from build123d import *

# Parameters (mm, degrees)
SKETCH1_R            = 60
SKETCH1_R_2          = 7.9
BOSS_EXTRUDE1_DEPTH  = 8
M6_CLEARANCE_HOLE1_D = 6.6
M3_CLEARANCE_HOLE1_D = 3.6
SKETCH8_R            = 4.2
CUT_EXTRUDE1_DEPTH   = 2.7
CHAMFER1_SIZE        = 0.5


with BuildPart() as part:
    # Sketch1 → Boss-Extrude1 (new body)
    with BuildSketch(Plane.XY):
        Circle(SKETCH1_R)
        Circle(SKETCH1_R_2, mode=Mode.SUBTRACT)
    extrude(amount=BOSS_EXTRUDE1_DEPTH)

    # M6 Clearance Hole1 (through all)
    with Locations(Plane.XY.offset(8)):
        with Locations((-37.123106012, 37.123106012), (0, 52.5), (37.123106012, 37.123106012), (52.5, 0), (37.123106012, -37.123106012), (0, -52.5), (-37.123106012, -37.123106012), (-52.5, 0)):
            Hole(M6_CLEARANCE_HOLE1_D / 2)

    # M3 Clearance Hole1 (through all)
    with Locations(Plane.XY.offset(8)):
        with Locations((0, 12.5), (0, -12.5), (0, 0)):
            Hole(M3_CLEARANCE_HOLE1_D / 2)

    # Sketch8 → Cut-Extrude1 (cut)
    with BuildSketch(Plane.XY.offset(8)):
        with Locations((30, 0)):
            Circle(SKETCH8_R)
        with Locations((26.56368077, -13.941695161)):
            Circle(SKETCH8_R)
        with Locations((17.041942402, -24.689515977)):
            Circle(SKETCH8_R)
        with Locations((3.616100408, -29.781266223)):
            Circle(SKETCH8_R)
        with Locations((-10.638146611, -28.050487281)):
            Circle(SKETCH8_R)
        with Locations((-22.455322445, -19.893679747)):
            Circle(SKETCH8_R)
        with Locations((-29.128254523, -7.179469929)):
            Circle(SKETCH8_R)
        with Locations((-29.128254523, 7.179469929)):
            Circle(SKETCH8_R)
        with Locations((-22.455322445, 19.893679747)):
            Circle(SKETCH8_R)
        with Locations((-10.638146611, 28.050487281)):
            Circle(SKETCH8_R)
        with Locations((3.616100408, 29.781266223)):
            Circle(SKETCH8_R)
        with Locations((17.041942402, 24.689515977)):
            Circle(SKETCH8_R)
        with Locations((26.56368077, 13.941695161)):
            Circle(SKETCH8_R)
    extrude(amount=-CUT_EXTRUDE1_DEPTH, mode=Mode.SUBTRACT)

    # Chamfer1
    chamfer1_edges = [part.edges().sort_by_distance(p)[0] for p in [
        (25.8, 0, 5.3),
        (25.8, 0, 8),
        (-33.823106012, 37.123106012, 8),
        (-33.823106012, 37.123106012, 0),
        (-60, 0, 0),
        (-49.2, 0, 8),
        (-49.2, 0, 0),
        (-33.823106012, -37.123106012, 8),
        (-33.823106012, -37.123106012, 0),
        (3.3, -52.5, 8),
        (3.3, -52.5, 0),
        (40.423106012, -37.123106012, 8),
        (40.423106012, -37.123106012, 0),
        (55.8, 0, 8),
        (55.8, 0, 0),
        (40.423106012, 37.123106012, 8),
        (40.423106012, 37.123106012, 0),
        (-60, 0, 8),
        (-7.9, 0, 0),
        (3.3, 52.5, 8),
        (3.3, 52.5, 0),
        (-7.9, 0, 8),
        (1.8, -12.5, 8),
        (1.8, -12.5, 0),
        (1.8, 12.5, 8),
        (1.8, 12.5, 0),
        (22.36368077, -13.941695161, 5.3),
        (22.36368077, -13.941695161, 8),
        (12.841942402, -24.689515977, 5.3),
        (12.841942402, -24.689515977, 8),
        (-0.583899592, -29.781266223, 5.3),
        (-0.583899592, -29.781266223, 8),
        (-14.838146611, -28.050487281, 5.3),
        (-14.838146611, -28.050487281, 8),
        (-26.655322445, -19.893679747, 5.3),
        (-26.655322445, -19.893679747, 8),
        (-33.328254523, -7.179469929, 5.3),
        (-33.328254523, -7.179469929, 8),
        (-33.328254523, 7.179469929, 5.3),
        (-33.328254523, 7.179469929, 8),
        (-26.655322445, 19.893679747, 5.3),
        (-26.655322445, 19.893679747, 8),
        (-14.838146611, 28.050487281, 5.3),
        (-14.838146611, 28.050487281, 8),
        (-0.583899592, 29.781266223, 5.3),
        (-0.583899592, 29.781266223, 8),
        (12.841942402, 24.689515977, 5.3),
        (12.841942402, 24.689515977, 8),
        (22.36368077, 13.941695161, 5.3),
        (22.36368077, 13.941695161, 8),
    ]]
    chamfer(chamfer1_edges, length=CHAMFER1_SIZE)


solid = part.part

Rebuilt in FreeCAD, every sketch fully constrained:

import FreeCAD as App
import Part
import Sketcher

V = App.Vector


def edges_at(feature, points):
    """Names of the edges that pass closest to the given points."""
    edges = feature.Shape.Edges
    near = lambda p: min(range(len(edges)), key=lambda i: edges[i].distToShape(Part.Vertex(*p))[0])
    return sorted({f"Edge{near(p) + 1}" for p in points})

doc = App.newDocument("Part")
body = doc.addObject("PartDesign::Body", "Body")

# Sketch on XY plane
sketch1 = body.newObject("Sketcher::SketchObject", "Sketch")
sketch1.AttachmentSupport = (doc.getObject("XY_Plane"), [""])
sketch1.MapMode = "FlatFace"
sketch1.addGeometry(Part.Circle(V(0, 0, 0), V(0, 0, 1), 60), False)
sketch1.addGeometry(Part.Circle(V(0, 0, 0), V(0, 0, 1), 7.9), False)
sketch1.addConstraint(Sketcher.Constraint("Coincident", 0, 3, -1, 1))
sketch1.addConstraint(Sketcher.Constraint("Coincident", 1, 3, -1, 1))
sketch1.addConstraint(Sketcher.Constraint("Diameter", 0, 120.0))
sketch1.addConstraint(Sketcher.Constraint("Diameter", 1, 15.8))
pad1 = body.newObject("PartDesign::Pad", "Pad")
pad1.Profile = sketch1
pad1.Length = 8

# Sketch on XY plane
sketch2 = body.newObject("Sketcher::SketchObject", "Sketch001")
sketch2.AttachmentSupport = (doc.getObject("XY_Plane"), [""])
sketch2.MapMode = "FlatFace"
sketch2.AttachmentOffset = App.Placement(V(0, 0, 8), App.Rotation())
sketch2.addGeometry(Part.Circle(V(-37.123106, 37.123106, 0), V(0, 0, 1), 3.3), False)
sketch2.addGeometry(Part.Circle(V(0, 52.5, 0), V(0, 0, 1), 3.3), False)
sketch2.addGeometry(Part.Circle(V(37.123106, 37.123106, 0), V(0, 0, 1), 3.3), False)
sketch2.addGeometry(Part.Circle(V(52.5, 0, 0), V(0, 0, 1), 3.3), False)
sketch2.addGeometry(Part.Circle(V(37.123106, -37.123106, 0), V(0, 0, 1), 3.3), False)
sketch2.addGeometry(Part.Circle(V(0, -52.5, 0), V(0, 0, 1), 3.3), False)
sketch2.addGeometry(Part.Circle(V(-37.123106, -37.123106, 0), V(0, 0, 1), 3.3), False)
sketch2.addGeometry(Part.Circle(V(-52.5, 0, 0), V(0, 0, 1), 3.3), False)
sketch2.addConstraint(Sketcher.Constraint("Equal", 0, 1))
sketch2.addConstraint(Sketcher.Constraint("Equal", 1, 2))
sketch2.addConstraint(Sketcher.Constraint("Equal", 2, 3))
sketch2.addConstraint(Sketcher.Constraint("Equal", 3, 4))
sketch2.addConstraint(Sketcher.Constraint("Equal", 4, 5))
sketch2.addConstraint(Sketcher.Constraint("Equal", 5, 6))
sketch2.addConstraint(Sketcher.Constraint("Equal", 6, 7))
sketch2.addConstraint(Sketcher.Constraint("Symmetric", 0, 3, 4, 3, -1, 1))
sketch2.addConstraint(Sketcher.Constraint("Symmetric", 1, 3, 5, 3, -1, 1))
sketch2.addConstraint(Sketcher.Constraint("Symmetric", 2, 3, 6, 3, -1, 1))
sketch2.addConstraint(Sketcher.Constraint("Symmetric", 3, 3, 7, 3, -1, 1))
sketch2.addConstraint(Sketcher.Constraint("Symmetric", 0, 3, 2, 3, -2))
sketch2.addConstraint(Sketcher.Constraint("PointOnObject", 1, 3, -2))
sketch2.addConstraint(Sketcher.Constraint("PointOnObject", 3, 3, -1))
sketch2.addConstraint(Sketcher.Constraint("Diameter", 0, 6.6))
sketch2.addConstraint(Sketcher.Constraint("DistanceY", 5, 3, 1, 3, 105.0))
sketch2.addConstraint(Sketcher.Constraint("DistanceX", -1, 1, 3, 3, 52.5))
sketch2.addConstraint(Sketcher.Constraint("DistanceX", 0, 3, -1, 1, 37.123106))
sketch2.addConstraint(Sketcher.Constraint("DistanceY", -1, 1, 0, 3, 37.123106))
doc.recompute()
hole = body.newObject("PartDesign::Hole", "Hole")
hole.Profile = sketch2
hole.ThreadType = "None"
hole.Diameter = 6.6
hole.DepthType = "ThroughAll"

# Sketch on XY plane
sketch3 = body.newObject("Sketcher::SketchObject", "Sketch002")
sketch3.AttachmentSupport = (doc.getObject("XY_Plane"), [""])
sketch3.MapMode = "FlatFace"
sketch3.AttachmentOffset = App.Placement(V(0, 0, 8), App.Rotation())
sketch3.addGeometry(Part.Circle(V(0, 12.5, 0), V(0, 0, 1), 1.8), False)
sketch3.addGeometry(Part.Circle(V(0, -12.5, 0), V(0, 0, 1), 1.8), False)
sketch3.addGeometry(Part.Circle(V(0, 0, 0), V(0, 0, 1), 1.8), False)
sketch3.addConstraint(Sketcher.Constraint("Coincident", 2, 3, -1, 1))
sketch3.addConstraint(Sketcher.Constraint("Equal", 0, 1))
sketch3.addConstraint(Sketcher.Constraint("Equal", 1, 2))
sketch3.addConstraint(Sketcher.Constraint("Symmetric", 0, 3, 1, 3, -1, 1))
sketch3.addConstraint(Sketcher.Constraint("PointOnObject", 0, 3, -2))
sketch3.addConstraint(Sketcher.Constraint("Diameter", 0, 3.6))
sketch3.addConstraint(Sketcher.Constraint("DistanceY", 1, 3, 0, 3, 25.0))
doc.recompute()
hole2 = body.newObject("PartDesign::Hole", "Hole001")
hole2.Profile = sketch3
hole2.ThreadType = "None"
hole2.Diameter = 3.6
hole2.DepthType = "ThroughAll"

# Sketch on XY plane
sketch4 = body.newObject("Sketcher::SketchObject", "Sketch003")
sketch4.AttachmentSupport = (doc.getObject("XY_Plane"), [""])
sketch4.MapMode = "FlatFace"
sketch4.AttachmentOffset = App.Placement(V(0, 0, 8), App.Rotation())
sketch4.addGeometry(Part.Circle(V(30, 0, 0), V(0, 0, 1), 4.2), False)
sketch4.addGeometry(Part.Circle(V(26.563681, -13.941695, 0), V(0, 0, 1), 4.2), False)
sketch4.addGeometry(Part.Circle(V(17.041942, -24.689516, 0), V(0, 0, 1), 4.2), False)
sketch4.addGeometry(Part.Circle(V(3.6161, -29.781266, 0), V(0, 0, 1), 4.2), False)
sketch4.addGeometry(Part.Circle(V(-10.638147, -28.050487, 0), V(0, 0, 1), 4.2), False)
sketch4.addGeometry(Part.Circle(V(-22.455322, -19.89368, 0), V(0, 0, 1), 4.2), False)
sketch4.addGeometry(Part.Circle(V(-29.128255, -7.17947, 0), V(0, 0, 1), 4.2), False)
sketch4.addGeometry(Part.Circle(V(-29.128255, 7.17947, 0), V(0, 0, 1), 4.2), False)
sketch4.addGeometry(Part.Circle(V(-22.455322, 19.89368, 0), V(0, 0, 1), 4.2), False)
sketch4.addGeometry(Part.Circle(V(-10.638147, 28.050487, 0), V(0, 0, 1), 4.2), False)
sketch4.addGeometry(Part.Circle(V(3.6161, 29.781266, 0), V(0, 0, 1), 4.2), False)
sketch4.addGeometry(Part.Circle(V(17.041942, 24.689516, 0), V(0, 0, 1), 4.2), False)
sketch4.addGeometry(Part.Circle(V(26.563681, 13.941695, 0), V(0, 0, 1), 4.2), False)
sketch4.addConstraint(Sketcher.Constraint("Equal", 0, 1))
sketch4.addConstraint(Sketcher.Constraint("Equal", 1, 2))
sketch4.addConstraint(Sketcher.Constraint("Equal", 2, 3))
sketch4.addConstraint(Sketcher.Constraint("Equal", 3, 4))
sketch4.addConstraint(Sketcher.Constraint("Equal", 4, 5))
sketch4.addConstraint(Sketcher.Constraint("Equal", 5, 6))
sketch4.addConstraint(Sketcher.Constraint("Equal", 6, 7))
sketch4.addConstraint(Sketcher.Constraint("Equal", 7, 8))
sketch4.addConstraint(Sketcher.Constraint("Equal", 8, 9))
sketch4.addConstraint(Sketcher.Constraint("Equal", 9, 10))
sketch4.addConstraint(Sketcher.Constraint("Equal", 10, 11))
sketch4.addConstraint(Sketcher.Constraint("Equal", 11, 12))
sketch4.addConstraint(Sketcher.Constraint("Symmetric", 6, 3, 7, 3, -1))
sketch4.addConstraint(Sketcher.Constraint("Symmetric", 5, 3, 8, 3, -1))
sketch4.addConstraint(Sketcher.Constraint("Symmetric", 4, 3, 9, 3, -1))
sketch4.addConstraint(Sketcher.Constraint("Symmetric", 3, 3, 10, 3, -1))
sketch4.addConstraint(Sketcher.Constraint("Symmetric", 2, 3, 11, 3, -1))
sketch4.addConstraint(Sketcher.Constraint("Symmetric", 1, 3, 12, 3, -1))
sketch4.addConstraint(Sketcher.Constraint("PointOnObject", 0, 3, -1))
sketch4.addConstraint(Sketcher.Constraint("Diameter", 0, 8.4))
sketch4.addConstraint(Sketcher.Constraint("DistanceX", -1, 1, 0, 3, 30.0))
sketch4.addConstraint(Sketcher.Constraint("DistanceX", -1, 1, 3, 3, 3.6161))
sketch4.addConstraint(Sketcher.Constraint("DistanceX", -1, 1, 1, 3, 26.563681))
sketch4.addConstraint(Sketcher.Constraint("DistanceY", 5, 3, -1, 1, 19.89368))
sketch4.addConstraint(Sketcher.Constraint("DistanceY", 6, 3, -1, 1, 7.17947))
sketch4.addConstraint(Sketcher.Constraint("DistanceX", 2, 3, 1, 3, 9.521738))
sketch4.addConstraint(Sketcher.Constraint("DistanceY", 2, 3, 1, 3, 10.747821))
sketch4.addConstraint(Sketcher.Constraint("DistanceY", 3, 3, 2, 3, 5.09175))
sketch4.addConstraint(Sketcher.Constraint("DistanceY", 3, 3, 4, 3, 1.730779))
sketch4.addConstraint(Sketcher.Constraint("DistanceX", 4, 3, 2, 3, 27.680089))
sketch4.addConstraint(Sketcher.Constraint("DistanceY", 1, 3, 10, 3, 43.722961))
sketch4.addConstraint(Sketcher.Constraint("DistanceX", 5, 3, -1, 1, 22.455322))
sketch4.addConstraint(Sketcher.Constraint("DistanceX", 6, 3, -1, 1, 29.128255))
pocket1 = body.newObject("PartDesign::Pocket", "Pocket")
pocket1.Profile = sketch4
pocket1.Length = 2.7
doc.recompute()

chamfer = body.newObject("PartDesign::Chamfer", "Chamfer")
chamfer.Base = (pocket1, edges_at(pocket1, [
    (25.8, 0, 5.3),
    (25.8, 0, 8),
    (-33.823, 37.123, 8),
    (-33.823, 37.123, 0),
    (-60, 0, 0),
    (-49.2, 0, 8),
    (-49.2, 0, 0),
    (-33.823, -37.123, 8),
    (-33.823, -37.123, 0),
    (3.3, -52.5, 8),
    (3.3, -52.5, 0),
    (40.423, -37.123, 8),
    (40.423, -37.123, 0),
    (55.8, 0, 8),
    (55.8, 0, 0),
    (40.423, 37.123, 8),
    (40.423, 37.123, 0),
    (-60, 0, 8),
    (-7.9, 0, 0),
    (3.3, 52.5, 8),
    (3.3, 52.5, 0),
    (-7.9, 0, 8),
    (1.8, -12.5, 8),
    (1.8, -12.5, 0),
    (1.8, 12.5, 8),
    (1.8, 12.5, 0),
    (22.364, -13.942, 5.3),
    (22.364, -13.942, 8),
    (12.842, -24.69, 5.3),
    (12.842, -24.69, 8),
    (-0.584, -29.781, 5.3),
    (-0.584, -29.781, 8),
    (-14.838, -28.05, 5.3),
    (-14.838, -28.05, 8),
    (-26.655, -19.894, 5.3),
    (-26.655, -19.894, 8),
    (-33.328, -7.179, 5.3),
    (-33.328, -7.179, 8),
    (-33.328, 7.179, 5.3),
    (-33.328, 7.179, 8),
    (-26.655, 19.894, 5.3),
    (-26.655, 19.894, 8),
    (-14.838, 28.05, 5.3),
    (-14.838, 28.05, 8),
    (-0.584, 29.781, 5.3),
    (-0.584, 29.781, 8),
    (12.842, 24.69, 5.3),
    (12.842, 24.69, 8),
    (22.364, 13.942, 5.3),
    (22.364, 13.942, 8),
]))
chamfer.Size = 0.5

doc.recompute()
